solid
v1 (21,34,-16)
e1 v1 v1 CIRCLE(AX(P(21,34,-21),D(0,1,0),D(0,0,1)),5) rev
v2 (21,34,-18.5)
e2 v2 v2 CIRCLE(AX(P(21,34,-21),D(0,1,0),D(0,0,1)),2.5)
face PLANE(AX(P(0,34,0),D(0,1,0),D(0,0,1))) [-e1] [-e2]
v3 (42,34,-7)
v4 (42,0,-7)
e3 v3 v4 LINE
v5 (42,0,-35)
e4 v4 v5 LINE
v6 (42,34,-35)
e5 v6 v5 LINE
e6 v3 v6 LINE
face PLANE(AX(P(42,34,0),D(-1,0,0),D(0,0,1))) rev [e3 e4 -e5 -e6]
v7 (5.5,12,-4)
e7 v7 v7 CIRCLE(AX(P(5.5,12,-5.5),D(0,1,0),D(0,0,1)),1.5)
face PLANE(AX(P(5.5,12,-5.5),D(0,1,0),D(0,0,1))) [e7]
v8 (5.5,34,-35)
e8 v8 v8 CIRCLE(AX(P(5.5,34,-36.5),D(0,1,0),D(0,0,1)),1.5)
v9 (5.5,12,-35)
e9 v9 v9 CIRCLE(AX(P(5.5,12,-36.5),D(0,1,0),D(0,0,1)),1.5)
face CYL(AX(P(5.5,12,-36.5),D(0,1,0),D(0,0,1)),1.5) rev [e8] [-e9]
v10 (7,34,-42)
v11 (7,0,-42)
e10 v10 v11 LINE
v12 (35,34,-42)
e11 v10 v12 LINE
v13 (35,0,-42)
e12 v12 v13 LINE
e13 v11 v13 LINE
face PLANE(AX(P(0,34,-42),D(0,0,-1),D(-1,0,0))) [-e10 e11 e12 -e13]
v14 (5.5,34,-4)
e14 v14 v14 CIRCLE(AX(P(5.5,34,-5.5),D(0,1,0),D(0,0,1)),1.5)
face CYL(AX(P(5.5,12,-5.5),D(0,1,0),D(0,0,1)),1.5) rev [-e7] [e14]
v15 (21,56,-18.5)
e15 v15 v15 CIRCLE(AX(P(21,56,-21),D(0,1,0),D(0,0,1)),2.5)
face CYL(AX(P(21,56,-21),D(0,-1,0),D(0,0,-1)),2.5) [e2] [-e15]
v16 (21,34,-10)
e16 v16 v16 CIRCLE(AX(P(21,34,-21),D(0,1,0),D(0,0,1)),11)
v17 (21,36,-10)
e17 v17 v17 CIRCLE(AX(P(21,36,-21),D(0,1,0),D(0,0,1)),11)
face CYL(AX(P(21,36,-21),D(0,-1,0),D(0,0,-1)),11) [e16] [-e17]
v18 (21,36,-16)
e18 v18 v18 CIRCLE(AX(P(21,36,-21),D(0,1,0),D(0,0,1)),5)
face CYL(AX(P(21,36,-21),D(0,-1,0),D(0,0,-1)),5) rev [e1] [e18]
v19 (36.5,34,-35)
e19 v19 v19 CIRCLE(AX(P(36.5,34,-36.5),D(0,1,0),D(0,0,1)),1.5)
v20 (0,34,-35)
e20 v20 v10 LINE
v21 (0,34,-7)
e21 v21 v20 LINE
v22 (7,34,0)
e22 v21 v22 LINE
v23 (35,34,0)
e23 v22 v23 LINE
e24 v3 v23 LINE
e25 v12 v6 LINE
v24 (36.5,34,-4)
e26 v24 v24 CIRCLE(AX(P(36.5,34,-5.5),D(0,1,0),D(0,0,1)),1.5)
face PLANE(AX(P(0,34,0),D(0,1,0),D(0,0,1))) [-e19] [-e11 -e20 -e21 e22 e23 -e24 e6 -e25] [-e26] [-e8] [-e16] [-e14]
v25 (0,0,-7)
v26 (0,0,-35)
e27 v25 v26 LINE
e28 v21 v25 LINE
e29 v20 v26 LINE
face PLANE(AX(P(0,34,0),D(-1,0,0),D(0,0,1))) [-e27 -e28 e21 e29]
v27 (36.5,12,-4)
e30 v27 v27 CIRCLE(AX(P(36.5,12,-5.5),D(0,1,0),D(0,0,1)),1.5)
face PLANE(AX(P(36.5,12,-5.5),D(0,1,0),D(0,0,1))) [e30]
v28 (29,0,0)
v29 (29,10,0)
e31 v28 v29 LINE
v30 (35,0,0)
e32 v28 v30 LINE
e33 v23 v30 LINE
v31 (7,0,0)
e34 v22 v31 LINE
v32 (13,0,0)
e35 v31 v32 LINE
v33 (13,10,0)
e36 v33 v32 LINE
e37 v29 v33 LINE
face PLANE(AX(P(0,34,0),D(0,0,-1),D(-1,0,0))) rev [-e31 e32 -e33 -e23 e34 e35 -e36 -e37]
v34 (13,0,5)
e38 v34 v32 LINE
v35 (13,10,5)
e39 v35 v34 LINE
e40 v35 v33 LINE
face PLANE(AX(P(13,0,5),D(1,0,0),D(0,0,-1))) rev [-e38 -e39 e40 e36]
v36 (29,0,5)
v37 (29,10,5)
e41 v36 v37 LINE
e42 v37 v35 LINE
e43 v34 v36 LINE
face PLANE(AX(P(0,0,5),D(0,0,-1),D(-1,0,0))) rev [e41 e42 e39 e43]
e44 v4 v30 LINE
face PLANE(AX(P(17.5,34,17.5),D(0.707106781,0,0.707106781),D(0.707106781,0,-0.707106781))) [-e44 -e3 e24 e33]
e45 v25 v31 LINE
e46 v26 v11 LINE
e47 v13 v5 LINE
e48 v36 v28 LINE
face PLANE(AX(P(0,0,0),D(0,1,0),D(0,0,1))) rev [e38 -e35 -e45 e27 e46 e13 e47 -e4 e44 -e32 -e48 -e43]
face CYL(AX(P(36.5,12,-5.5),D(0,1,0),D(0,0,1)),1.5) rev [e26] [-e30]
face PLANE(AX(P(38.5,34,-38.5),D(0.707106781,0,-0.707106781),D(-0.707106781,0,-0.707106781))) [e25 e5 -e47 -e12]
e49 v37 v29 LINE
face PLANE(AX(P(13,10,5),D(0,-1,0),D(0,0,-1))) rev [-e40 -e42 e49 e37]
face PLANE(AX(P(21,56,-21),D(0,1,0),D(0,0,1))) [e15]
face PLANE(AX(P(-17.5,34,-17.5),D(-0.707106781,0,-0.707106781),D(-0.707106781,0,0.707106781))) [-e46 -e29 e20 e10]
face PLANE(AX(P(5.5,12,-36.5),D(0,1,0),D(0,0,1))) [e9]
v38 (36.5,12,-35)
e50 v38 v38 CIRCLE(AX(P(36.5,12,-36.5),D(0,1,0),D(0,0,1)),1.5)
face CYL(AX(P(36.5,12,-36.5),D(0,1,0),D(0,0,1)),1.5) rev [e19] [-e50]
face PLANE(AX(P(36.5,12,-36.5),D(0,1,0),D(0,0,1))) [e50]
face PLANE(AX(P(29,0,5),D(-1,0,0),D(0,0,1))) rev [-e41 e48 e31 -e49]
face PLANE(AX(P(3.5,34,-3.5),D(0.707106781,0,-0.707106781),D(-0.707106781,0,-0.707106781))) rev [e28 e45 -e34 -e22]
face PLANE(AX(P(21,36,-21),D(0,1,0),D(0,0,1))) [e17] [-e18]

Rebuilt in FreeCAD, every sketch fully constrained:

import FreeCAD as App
import Part
import Sketcher

V = App.Vector

doc = App.newDocument("Part")
body = doc.addObject("PartDesign::Body", "Body")

# Sketch on XZ plane
sketch1 = body.newObject("Sketcher::SketchObject", "Sketch")
sketch1.AttachmentSupport = (doc.getObject("XZ_Plane"), [""])
sketch1.MapMode = "FlatFace"
sketch1.addGeometry([
    Part.LineSegment(V(7, -42, 0), V(0, -35, 0)),  # 0
    Part.LineSegment(V(0, -35, 0), V(0, -7, 0)),  # 1
    Part.LineSegment(V(0, -7, 0), V(7, 0, 0)),  # 2
    Part.LineSegment(V(7, 0, 0), V(35, 0, 0)),  # 3
    Part.LineSegment(V(35, 0, 0), V(42, -7, 0)),  # 4
    Part.LineSegment(V(42, -7, 0), V(42, -35, 0)),  # 5
    Part.LineSegment(V(42, -35, 0), V(35, -42, 0)),  # 6
    Part.LineSegment(V(35, -42, 0), V(7, -42, 0)),  # 7
], False)
sketch1.addConstraint([
    Sketcher.Constraint("Coincident", 0, 2, 1, 1),
    Sketcher.Constraint("Coincident", 1, 2, 2, 1),
    Sketcher.Constraint("Coincident", 2, 2, 3, 1),
    Sketcher.Constraint("Coincident", 3, 2, 4, 1),
    Sketcher.Constraint("Coincident", 4, 2, 5, 1),
    Sketcher.Constraint("Coincident", 5, 2, 6, 1),
    Sketcher.Constraint("Coincident", 6, 2, 7, 1),
    Sketcher.Constraint("Coincident", 7, 2, 0, 1),
    Sketcher.Constraint("Vertical", 1),
    Sketcher.Constraint("Horizontal", 3),
    Sketcher.Constraint("Vertical", 5),
    Sketcher.Constraint("Horizontal", 7),
    Sketcher.Constraint("PointOnObject", 0, 2, -2),
    Sketcher.Constraint("PointOnObject", 2, 2, -1),
    Sketcher.Constraint("Perpendicular", 0, 2),
    Sketcher.Constraint("Perpendicular", 2, 4),
    Sketcher.Constraint("Perpendicular", 4, 6),
    Sketcher.Constraint("Horizontal", 1, 2, 4, 2),
    Sketcher.Constraint("Horizontal", 0, 2, 5, 2),
    Sketcher.Constraint("Vertical", 3, 2, 6, 2),
    Sketcher.Constraint("Vertical", 2, 2, 7, 2),
    Sketcher.Constraint("Equal", 7, 1),
    Sketcher.Constraint("DistanceX", 3, 1, 3, 2, 28.0),
    Sketcher.Constraint("DistanceY", 0, 2, -1, 1, 35.0),
])
pad1 = body.newObject("PartDesign::Pad", "Pad")
pad1.Profile = sketch1
pad1.Length = 34
pad1.Reversed = True

# Sketch on XY plane
sketch2 = body.newObject("Sketcher::SketchObject", "Sketch001")
sketch2.AttachmentSupport = (doc.getObject("XY_Plane"), [""])
sketch2.MapMode = "FlatFace"
sketch2.addGeometry([
    Part.LineSegment(V(13, 10, 0), V(13, 0, 0)),
    Part.LineSegment(V(13, 0, 0), V(29, 0, 0)),
    Part.LineSegment(V(29, 0, 0), V(29, 10, 0)),
    Part.LineSegment(V(29, 10, 0), V(13, 10, 0)),
], False)
sketch2.addConstraint([
    Sketcher.Constraint("Coincident", 0, 2, 1, 1),
    Sketcher.Constraint("Coincident", 1, 2, 2, 1),
    Sketcher.Constraint("Coincident", 2, 2, 3, 1),
    Sketcher.Constraint("Coincident", 3, 2, 0, 1),
    Sketcher.Constraint("Vertical", 0),
    Sketcher.Constraint("Horizontal", 1),
    Sketcher.Constraint("Vertical", 2),
    Sketcher.Constraint("Horizontal", 3),
    Sketcher.Constraint("PointOnObject", 0, 2, -1),
    Sketcher.Constraint("DistanceX", 1, 1, 1, 2, 16.0),
    Sketcher.Constraint("DistanceY", 0, 2, 0, 1, 10.0),
    Sketcher.Constraint("DistanceX", -1, 1, 0, 2, 13.0),
])
pad2 = body.newObject("PartDesign::Pad", "Pad001")
pad2.Profile = sketch2
pad2.Length = 5

# Sketch on XZ plane
sketch3 = body.newObject("Sketcher::SketchObject", "Sketch002")
sketch3.AttachmentSupport = (doc.getObject("XZ_Plane"), [""])
sketch3.MapMode = "FlatFace"
sketch3.AttachmentOffset = App.Placement(V(0, 0, -34), App.Rotation())
sketch3.addGeometry([
    Part.Circle(V(21, -21, 0), V(0, 0, 1), 11),
    Part.Circle(V(21, -21, 0), V(0, 0, 1), 5),
], False)
sketch3.addConstraint([
    Sketcher.Constraint("Coincident", 1, 3, 0, 3),
    Sketcher.Constraint("Diameter", 0, 22.0),
    Sketcher.Constraint("Diameter", 1, 10.0),
    Sketcher.Constraint("DistanceX", -1, 1, 0, 3, 21.0),
    Sketcher.Constraint("DistanceY", 0, 3, -1, 1, 21.0),
])
pad3 = body.newObject("PartDesign::Pad", "Pad002")
pad3.Profile = sketch3
pad3.Length = 2
pad3.Reversed = True

# Sketch on XZ plane
sketch4 = body.newObject("Sketcher::SketchObject", "Sketch003")
sketch4.AttachmentSupport = (doc.getObject("XZ_Plane"), [""])
sketch4.MapMode = "FlatFace"
sketch4.AttachmentOffset = App.Placement(V(0, 0, -34), App.Rotation())
sketch4.addGeometry(Part.Circle(V(21, -21, 0), V(0, 0, 1), 2.5), False)
sketch4.addConstraint([
    Sketcher.Constraint("Diameter", 0, 5.0),
    Sketcher.Constraint("DistanceX", -1, 1, 0, 3, 21.0),
    Sketcher.Constraint("DistanceY", 0, 3, -1, 1, 21.0),
])
pad4 = body.newObject("PartDesign::Pad", "Pad003")
pad4.Profile = sketch4
pad4.Length = 22
pad4.Reversed = True

# Sketch on XZ plane
sketch5 = body.newObject("Sketcher::SketchObject", "Sketch004")
sketch5.AttachmentSupport = (doc.getObject("XZ_Plane"), [""])
sketch5.MapMode = "FlatFace"
sketch5.AttachmentOffset = App.Placement(V(0, 0, -34), App.Rotation())
sketch5.addGeometry([
    Part.Circle(V(5.5, -36.5, 0), V(0, 0, 1), 1.5),
    Part.Circle(V(5.5, -5.5, 0), V(0, 0, 1), 1.5),
    Part.Circle(V(36.5, -5.5, 0), V(0, 0, 1), 1.5),
    Part.Circle(V(36.5, -36.5, 0), V(0, 0, 1), 1.5),
], False)
sketch5.addConstraint([
    Sketcher.Constraint("Equal", 0, 1),
    Sketcher.Constraint("Equal", 1, 2),
    Sketcher.Constraint("Equal", 2, 3),
    Sketcher.Constraint("Horizontal", 1, 3, 2, 3),
    Sketcher.Constraint("Horizontal", 0, 3, 3, 3),
    Sketcher.Constraint("Vertical", 0, 3, 1, 3),
    Sketcher.Constraint("Vertical", 2, 3, 3, 3),
    Sketcher.Constraint("Diameter", 0, 3.0),
    Sketcher.Constraint("DistanceY", 0, 3, 1, 3, 31.0),
    Sketcher.Constraint("DistanceX", 1, 3, 2, 3, 31.0),
    Sketcher.Constraint("DistanceX", -1, 1, 0, 3, 5.5),
    Sketcher.Constraint("DistanceY", 0, 3, -1, 1, 36.5),
])
pocket1 = body.newObject("PartDesign::Pocket", "Pocket")
pocket1.Profile = sketch5
pocket1.Length = 22
pocket1.Reversed = True

doc.recompute()
